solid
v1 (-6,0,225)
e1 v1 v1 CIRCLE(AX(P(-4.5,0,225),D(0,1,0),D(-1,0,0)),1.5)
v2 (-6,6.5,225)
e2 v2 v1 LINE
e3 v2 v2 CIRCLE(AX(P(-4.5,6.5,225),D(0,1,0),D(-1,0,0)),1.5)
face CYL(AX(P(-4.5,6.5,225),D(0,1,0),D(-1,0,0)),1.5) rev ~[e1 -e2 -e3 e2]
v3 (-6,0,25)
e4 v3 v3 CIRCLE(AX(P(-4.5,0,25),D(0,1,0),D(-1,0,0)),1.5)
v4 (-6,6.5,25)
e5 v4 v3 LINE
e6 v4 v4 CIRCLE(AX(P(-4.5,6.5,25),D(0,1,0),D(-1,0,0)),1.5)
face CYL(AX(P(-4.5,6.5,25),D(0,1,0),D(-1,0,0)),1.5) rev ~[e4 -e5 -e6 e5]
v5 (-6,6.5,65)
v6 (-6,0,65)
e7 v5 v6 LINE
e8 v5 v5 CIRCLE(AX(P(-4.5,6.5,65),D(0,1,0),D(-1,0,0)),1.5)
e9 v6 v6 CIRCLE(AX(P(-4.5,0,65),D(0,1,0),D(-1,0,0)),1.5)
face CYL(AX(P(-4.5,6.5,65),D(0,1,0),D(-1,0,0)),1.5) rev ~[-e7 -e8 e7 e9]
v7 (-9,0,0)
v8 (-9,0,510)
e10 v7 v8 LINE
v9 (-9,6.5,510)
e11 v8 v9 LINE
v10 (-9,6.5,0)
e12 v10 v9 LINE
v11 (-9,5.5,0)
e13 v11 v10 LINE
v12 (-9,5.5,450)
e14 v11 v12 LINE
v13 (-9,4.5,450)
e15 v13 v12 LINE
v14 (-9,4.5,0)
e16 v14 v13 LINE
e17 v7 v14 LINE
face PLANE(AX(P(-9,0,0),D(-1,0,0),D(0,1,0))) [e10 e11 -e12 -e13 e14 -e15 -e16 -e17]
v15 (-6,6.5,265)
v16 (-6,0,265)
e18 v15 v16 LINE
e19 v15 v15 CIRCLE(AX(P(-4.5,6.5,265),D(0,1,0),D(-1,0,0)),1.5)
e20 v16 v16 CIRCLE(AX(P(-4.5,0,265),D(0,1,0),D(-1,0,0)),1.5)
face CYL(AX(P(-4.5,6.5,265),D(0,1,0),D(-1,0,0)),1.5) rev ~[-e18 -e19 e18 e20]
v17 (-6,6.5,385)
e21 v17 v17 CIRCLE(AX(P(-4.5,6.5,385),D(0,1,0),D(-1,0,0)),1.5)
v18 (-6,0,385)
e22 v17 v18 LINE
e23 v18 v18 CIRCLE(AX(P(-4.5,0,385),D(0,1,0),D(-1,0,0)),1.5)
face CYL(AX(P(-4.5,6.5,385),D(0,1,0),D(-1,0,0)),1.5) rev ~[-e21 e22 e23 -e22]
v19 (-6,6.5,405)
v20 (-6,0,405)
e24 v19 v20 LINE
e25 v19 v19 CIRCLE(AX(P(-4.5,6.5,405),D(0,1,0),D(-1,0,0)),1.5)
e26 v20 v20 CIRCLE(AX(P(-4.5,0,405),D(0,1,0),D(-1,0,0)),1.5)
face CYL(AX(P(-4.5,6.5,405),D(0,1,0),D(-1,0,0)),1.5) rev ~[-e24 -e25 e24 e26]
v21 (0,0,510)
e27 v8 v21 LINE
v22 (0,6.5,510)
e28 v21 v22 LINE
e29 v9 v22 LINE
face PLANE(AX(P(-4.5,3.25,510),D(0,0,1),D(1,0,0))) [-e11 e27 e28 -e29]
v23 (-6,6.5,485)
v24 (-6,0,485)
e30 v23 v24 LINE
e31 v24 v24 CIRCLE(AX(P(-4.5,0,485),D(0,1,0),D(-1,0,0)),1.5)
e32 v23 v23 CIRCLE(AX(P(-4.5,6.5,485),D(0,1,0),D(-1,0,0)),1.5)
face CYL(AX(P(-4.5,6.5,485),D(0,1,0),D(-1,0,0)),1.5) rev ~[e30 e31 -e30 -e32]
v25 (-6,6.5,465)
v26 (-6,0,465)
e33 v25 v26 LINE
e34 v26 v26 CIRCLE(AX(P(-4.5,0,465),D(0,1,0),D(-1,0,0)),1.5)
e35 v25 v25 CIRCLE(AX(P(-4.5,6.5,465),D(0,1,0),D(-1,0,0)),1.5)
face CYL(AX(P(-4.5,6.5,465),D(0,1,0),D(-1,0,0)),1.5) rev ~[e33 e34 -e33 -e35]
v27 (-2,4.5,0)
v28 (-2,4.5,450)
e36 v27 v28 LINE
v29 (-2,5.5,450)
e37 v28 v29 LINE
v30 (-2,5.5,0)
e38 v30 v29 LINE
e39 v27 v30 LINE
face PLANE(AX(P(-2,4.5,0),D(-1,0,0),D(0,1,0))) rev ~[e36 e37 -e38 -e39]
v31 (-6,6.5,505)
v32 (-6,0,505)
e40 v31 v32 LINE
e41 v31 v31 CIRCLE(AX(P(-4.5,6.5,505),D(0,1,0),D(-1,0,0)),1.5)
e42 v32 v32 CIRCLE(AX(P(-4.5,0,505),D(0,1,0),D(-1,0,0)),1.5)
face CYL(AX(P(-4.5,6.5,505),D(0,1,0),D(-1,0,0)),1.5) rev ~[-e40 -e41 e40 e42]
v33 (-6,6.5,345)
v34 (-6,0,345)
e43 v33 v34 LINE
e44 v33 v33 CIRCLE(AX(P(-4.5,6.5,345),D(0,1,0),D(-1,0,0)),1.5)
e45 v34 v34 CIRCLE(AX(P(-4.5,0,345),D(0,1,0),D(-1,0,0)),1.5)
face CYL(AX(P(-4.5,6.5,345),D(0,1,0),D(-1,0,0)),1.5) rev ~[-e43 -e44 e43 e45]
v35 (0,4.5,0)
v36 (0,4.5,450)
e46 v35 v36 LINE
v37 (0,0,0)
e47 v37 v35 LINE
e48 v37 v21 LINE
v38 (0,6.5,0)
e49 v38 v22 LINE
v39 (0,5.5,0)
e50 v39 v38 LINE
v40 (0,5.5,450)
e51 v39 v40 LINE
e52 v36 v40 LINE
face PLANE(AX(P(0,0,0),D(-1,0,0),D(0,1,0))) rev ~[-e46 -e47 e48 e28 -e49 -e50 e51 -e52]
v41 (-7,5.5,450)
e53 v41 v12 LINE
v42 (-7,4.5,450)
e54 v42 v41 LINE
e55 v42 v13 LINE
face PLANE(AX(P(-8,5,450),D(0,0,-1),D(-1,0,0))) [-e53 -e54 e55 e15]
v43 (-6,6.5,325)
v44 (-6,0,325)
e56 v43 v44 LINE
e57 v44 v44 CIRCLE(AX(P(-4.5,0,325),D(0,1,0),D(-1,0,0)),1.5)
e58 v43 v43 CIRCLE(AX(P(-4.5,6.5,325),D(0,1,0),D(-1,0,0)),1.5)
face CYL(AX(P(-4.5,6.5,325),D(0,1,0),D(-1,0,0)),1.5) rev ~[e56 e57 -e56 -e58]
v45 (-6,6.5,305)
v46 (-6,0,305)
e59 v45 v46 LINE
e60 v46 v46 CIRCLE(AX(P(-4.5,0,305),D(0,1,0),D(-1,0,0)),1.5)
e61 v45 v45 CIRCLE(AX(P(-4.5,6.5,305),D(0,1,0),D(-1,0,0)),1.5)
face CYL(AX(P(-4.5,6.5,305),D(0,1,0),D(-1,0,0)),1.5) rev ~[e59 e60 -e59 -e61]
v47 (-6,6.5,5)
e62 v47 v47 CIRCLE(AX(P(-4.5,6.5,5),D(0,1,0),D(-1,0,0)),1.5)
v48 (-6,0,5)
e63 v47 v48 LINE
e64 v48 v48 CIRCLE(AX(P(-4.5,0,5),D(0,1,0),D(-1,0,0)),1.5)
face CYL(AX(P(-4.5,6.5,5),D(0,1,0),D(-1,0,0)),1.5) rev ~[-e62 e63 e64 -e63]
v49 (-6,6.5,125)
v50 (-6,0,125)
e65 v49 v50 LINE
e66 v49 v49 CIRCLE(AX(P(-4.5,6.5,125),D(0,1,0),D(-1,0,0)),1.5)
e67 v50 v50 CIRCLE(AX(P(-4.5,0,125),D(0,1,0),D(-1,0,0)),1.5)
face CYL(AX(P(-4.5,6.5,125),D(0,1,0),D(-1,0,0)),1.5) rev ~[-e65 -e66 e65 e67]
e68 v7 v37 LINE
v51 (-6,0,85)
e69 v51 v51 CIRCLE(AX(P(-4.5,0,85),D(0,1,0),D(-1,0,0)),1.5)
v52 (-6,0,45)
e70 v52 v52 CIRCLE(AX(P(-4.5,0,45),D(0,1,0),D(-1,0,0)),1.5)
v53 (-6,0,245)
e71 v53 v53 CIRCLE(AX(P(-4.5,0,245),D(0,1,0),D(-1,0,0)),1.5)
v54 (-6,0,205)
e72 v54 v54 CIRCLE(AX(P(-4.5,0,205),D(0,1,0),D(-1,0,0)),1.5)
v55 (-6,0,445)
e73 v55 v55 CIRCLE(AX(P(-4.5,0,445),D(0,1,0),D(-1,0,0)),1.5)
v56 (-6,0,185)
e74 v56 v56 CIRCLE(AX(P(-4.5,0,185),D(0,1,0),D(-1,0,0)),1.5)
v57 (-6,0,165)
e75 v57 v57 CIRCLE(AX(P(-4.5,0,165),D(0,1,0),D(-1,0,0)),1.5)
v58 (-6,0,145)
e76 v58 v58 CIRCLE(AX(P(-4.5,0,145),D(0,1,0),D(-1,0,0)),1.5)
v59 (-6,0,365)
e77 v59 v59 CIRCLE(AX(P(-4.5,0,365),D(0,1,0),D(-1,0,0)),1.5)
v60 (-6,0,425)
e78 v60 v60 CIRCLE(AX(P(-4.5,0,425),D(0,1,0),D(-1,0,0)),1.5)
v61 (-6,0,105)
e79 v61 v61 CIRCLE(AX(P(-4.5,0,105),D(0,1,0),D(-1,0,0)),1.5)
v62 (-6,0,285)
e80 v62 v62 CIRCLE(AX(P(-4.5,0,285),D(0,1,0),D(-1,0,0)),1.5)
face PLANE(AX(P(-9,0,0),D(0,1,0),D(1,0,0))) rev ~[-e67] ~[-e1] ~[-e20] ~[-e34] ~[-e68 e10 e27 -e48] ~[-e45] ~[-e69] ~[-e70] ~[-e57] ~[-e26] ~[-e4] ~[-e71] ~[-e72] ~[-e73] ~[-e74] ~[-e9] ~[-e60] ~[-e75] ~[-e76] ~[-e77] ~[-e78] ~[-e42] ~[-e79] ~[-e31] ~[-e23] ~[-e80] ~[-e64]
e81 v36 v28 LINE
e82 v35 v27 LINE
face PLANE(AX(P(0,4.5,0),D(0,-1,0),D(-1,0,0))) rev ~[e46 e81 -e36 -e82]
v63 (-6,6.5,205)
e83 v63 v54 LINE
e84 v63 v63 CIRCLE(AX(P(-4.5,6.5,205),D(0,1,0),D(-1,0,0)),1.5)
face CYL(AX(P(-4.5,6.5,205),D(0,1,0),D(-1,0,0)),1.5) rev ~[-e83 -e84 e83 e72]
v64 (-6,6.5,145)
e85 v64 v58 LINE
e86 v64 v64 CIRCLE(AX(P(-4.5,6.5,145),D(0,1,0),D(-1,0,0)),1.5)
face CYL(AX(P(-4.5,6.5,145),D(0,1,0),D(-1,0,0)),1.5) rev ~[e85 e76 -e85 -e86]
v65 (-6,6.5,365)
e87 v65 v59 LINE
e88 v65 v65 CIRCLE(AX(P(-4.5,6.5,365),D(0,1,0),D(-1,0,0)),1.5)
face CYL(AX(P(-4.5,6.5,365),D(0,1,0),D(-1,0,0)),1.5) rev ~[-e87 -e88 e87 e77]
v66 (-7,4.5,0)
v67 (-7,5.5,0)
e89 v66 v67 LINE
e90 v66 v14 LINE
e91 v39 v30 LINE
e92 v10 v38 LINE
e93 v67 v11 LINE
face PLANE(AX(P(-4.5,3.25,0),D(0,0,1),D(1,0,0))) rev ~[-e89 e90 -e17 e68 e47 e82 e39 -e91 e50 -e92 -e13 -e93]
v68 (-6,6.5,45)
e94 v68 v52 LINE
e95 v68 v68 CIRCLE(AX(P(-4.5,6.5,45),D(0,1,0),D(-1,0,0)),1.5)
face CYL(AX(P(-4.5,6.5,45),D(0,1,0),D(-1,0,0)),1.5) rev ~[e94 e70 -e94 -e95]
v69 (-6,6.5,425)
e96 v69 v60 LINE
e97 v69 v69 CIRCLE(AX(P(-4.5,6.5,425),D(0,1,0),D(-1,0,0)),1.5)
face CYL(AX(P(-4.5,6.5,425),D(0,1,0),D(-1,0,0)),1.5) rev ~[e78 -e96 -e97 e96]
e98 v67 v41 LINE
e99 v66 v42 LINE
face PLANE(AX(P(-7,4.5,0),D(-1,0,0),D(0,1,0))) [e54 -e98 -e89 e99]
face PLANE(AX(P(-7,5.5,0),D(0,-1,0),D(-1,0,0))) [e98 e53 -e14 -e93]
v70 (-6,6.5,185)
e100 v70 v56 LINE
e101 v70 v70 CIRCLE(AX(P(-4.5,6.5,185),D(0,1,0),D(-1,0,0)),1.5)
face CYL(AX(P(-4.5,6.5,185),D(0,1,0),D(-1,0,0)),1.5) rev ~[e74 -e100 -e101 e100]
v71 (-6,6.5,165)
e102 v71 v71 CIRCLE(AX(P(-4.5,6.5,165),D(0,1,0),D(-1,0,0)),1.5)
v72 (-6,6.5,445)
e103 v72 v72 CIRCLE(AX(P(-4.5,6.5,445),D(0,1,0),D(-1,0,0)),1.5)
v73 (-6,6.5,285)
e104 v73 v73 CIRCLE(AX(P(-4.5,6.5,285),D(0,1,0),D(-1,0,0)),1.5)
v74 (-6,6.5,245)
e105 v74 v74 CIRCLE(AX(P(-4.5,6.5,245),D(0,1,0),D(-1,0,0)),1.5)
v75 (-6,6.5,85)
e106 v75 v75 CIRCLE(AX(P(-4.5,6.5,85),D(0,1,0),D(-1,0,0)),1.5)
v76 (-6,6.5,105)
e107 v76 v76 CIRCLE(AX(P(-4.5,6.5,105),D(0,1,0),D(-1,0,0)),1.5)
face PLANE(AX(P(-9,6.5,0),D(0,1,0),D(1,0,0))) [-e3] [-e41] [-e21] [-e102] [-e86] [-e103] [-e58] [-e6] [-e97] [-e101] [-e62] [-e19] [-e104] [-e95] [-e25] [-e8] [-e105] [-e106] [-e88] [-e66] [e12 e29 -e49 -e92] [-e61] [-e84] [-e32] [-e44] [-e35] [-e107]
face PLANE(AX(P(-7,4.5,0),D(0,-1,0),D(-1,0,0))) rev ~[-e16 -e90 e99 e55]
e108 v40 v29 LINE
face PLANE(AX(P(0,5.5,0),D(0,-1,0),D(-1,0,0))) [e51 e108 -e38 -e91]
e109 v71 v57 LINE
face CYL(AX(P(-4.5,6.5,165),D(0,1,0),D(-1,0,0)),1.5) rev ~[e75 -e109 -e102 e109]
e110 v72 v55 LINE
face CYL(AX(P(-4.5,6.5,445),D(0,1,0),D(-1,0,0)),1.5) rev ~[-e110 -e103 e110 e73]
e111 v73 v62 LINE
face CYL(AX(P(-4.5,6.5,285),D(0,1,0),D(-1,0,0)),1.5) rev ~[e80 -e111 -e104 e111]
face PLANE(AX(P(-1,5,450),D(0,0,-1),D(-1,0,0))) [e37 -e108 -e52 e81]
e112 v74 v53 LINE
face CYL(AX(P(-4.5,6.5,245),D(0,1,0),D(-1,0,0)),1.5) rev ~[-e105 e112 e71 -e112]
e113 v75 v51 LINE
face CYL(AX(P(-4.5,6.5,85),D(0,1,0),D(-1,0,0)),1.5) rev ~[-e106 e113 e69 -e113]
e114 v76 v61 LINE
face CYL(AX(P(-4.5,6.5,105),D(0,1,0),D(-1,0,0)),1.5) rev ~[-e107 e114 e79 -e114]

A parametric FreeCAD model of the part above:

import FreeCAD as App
import Part
import Sketcher

V = App.Vector
Q = App.Units.Quantity

doc = App.newDocument("Part")
body = doc.addObject("PartDesign::Body", "Body")

sketch1 = body.newObject("Sketcher::SketchObject", "Sketch")
sketch1.AttachmentSupport = (doc.getObject("XY_Plane"), [""])
sketch1.MapMode = "FlatFace"
sketch1.addGeometry(Part.LineSegment(V(-9, 6, 0), V(-9, 0, 0)), False)
sketch1.addGeometry(Part.LineSegment(V(-9, 0, 0), V(0, 0, 0)), False)
sketch1.addGeometry(Part.LineSegment(V(0, 0, 0), V(0, 6, 0)), False)
sketch1.addGeometry(Part.LineSegment(V(0, 6, 0), V(-9, 6, 0)), False)
sketch1.addConstraint(Sketcher.Constraint("Coincident", 0, 2, 1, 1))
sketch1.addConstraint(Sketcher.Constraint("Coincident", 1, 2, 2, 1))
sketch1.addConstraint(Sketcher.Constraint("Coincident", 2, 2, 3, 1))
sketch1.addConstraint(Sketcher.Constraint("Coincident", 3, 2, 0, 1))
sketch1.addConstraint(Sketcher.Constraint("Vertical", 0))
sketch1.addConstraint(Sketcher.Constraint("Horizontal", 1))
sketch1.addConstraint(Sketcher.Constraint("Vertical", 2))
sketch1.addConstraint(Sketcher.Constraint("Horizontal", 3))
sketch1.addConstraint(Sketcher.Constraint("Coincident", 1, 2, -1, 1))
sketch1.addConstraint(Sketcher.Constraint("DistanceX", 1, 1, 1, 2, Q("9 mm")))
sketch1.addConstraint(Sketcher.Constraint("DistanceY", 0, 2, 0, 1, Q("6.5 mm")))
pad1 = body.newObject("PartDesign::Pad", "Pad")
pad1.Profile = sketch1
pad1.Length = 510

sketch2 = body.newObject("Sketcher::SketchObject", "Sketch001")
sketch2.AttachmentSupport = (doc.getObject("XY_Plane"), [""])
sketch2.MapMode = "FlatFace"
sketch2.addGeometry(Part.LineSegment(V(0, 5.5, 0), V(0, 4.5, 0)), False)
sketch2.addGeometry(Part.LineSegment(V(0, 4.5, 0), V(-2, 4.5, 0)), False)
sketch2.addGeometry(Part.LineSegment(V(-2, 4.5, 0), V(-2, 5.5, 0)), False)
sketch2.addGeometry(Part.LineSegment(V(-2, 5.5, 0), V(0, 5.5, 0)), False)
sketch2.addGeometry(Part.LineSegment(V(-7, 5.5, 0), V(-7, 4.5, 0)), False)
sketch2.addGeometry(Part.LineSegment(V(-7, 4.5, 0), V(-9, 4.5, 0)), False)
sketch2.addGeometry(Part.LineSegment(V(-9, 4.5, 0), V(-9, 5.5, 0)), False)
sketch2.addGeometry(Part.LineSegment(V(-9, 5.5, 0), V(-7, 5.5, 0)), False)
sketch2.addConstraint(Sketcher.Constraint("Coincident", 0, 2, 1, 1))
sketch2.addConstraint(Sketcher.Constraint("Coincident", 1, 2, 2, 1))
sketch2.addConstraint(Sketcher.Constraint("Coincident", 2, 2, 3, 1))
sketch2.addConstraint(Sketcher.Constraint("Coincident", 3, 2, 0, 1))
sketch2.addConstraint(Sketcher.Constraint("Coincident", 4, 2, 5, 1))
sketch2.addConstraint(Sketcher.Constraint("Coincident", 5, 2, 6, 1))
sketch2.addConstraint(Sketcher.Constraint("Coincident", 6, 2, 7, 1))
sketch2.addConstraint(Sketcher.Constraint("Coincident", 7, 2, 4, 1))
sketch2.addConstraint(Sketcher.Constraint("Vertical", 0))
sketch2.addConstraint(Sketcher.Constraint("Horizontal", 1))
sketch2.addConstraint(Sketcher.Constraint("Vertical", 2))
sketch2.addConstraint(Sketcher.Constraint("Horizontal", 3))
sketch2.addConstraint(Sketcher.Constraint("Vertical", 4))
sketch2.addConstraint(Sketcher.Constraint("Horizontal", 5))
sketch2.addConstraint(Sketcher.Constraint("Vertical", 6))
sketch2.addConstraint(Sketcher.Constraint("Horizontal", 7))
sketch2.addConstraint(Sketcher.Constraint("PointOnObject", 0, 2, -2))
sketch2.addConstraint(Sketcher.Constraint("Horizontal", 1, 2, 4, 2))
sketch2.addConstraint(Sketcher.Constraint("Horizontal", 3, 2, 6, 2))
sketch2.addConstraint(Sketcher.Constraint("Equal", 3, 5))
sketch2.addConstraint(Sketcher.Constraint("DistanceX", 1, 2, 1, 1, Q("2 mm")))
sketch2.addConstraint(Sketcher.Constraint("DistanceY", 0, 2, 0, 1, Q("1 mm")))
sketch2.addConstraint(Sketcher.Constraint("DistanceX", 4, 2, -1, 1, Q("7 mm")))
sketch2.addConstraint(Sketcher.Constraint("DistanceY", -1, 1, 0, 2, Q("4.5 mm")))
pocket1 = body.newObject("PartDesign::Pocket", "Pocket")
pocket1.Profile = sketch2
pocket1.Length = 450
pocket1.Reversed = True

sketch3 = body.newObject("Sketcher::SketchObject", "Sketch002")
sketch3.AttachmentSupport = (doc.getObject("XZ_Plane"), [""])
sketch3.MapMode = "FlatFace"
sketch3.AttachmentOffset = App.Placement(V(0, 0, -6.5), App.Rotation())
sketch3.addGeometry(Part.Circle(V(-4.5, 5, 0), V(0, 0, 1), 1.5), False)
sketch3.addGeometry(Part.Circle(V(-4.5, 25, 0), V(0, 0, 1), 1.5), False)
sketch3.addGeometry(Part.Circle(V(-4.5, 45, 0), V(0, 0, 1), 1.5), False)
sketch3.addGeometry(Part.Circle(V(-4.5, 65, 0), V(0, 0, 1), 1.5), False)
sketch3.addGeometry(Part.Circle(V(-4.5, 85, 0), V(0, 0, 1), 1.5), False)
sketch3.addGeometry(Part.Circle(V(-4.5, 105, 0), V(0, 0, 1), 1.5), False)
sketch3.addGeometry(Part.Circle(V(-4.5, 125, 0), V(0, 0, 1), 1.5), False)
sketch3.addGeometry(Part.Circle(V(-4.5, 145, 0), V(0, 0, 1), 1.5), False)
sketch3.addGeometry(Part.Circle(V(-4.5, 165, 0), V(0, 0, 1), 1.5), False)
sketch3.addGeometry(Part.Circle(V(-4.5, 185, 0), V(0, 0, 1), 1.5), False)
sketch3.addGeometry(Part.Circle(V(-4.5, 205, 0), V(0, 0, 1), 1.5), False)
sketch3.addGeometry(Part.Circle(V(-4.5, 225, 0), V(0, 0, 1), 1.5), False)
sketch3.addGeometry(Part.Circle(V(-4.5, 245, 0), V(0, 0, 1), 1.5), False)
sketch3.addGeometry(Part.Circle(V(-4.5, 265, 0), V(0, 0, 1), 1.5), False)
sketch3.addGeometry(Part.Circle(V(-4.5, 285, 0), V(0, 0, 1), 1.5), False)
sketch3.addGeometry(Part.Circle(V(-4.5, 305, 0), V(0, 0, 1), 1.5), False)
sketch3.addGeometry(Part.Circle(V(-4.5, 325, 0), V(0, 0, 1), 1.5), False)
sketch3.addGeometry(Part.Circle(V(-4.5, 345, 0), V(0, 0, 1), 1.5), False)
sketch3.addGeometry(Part.Circle(V(-4.5, 365, 0), V(0, 0, 1), 1.5), False)
sketch3.addGeometry(Part.Circle(V(-4.5, 385, 0), V(0, 0, 1), 1.5), False)
sketch3.addGeometry(Part.Circle(V(-4.5, 405, 0), V(0, 0, 1), 1.5), False)
sketch3.addGeometry(Part.Circle(V(-4.5, 425, 0), V(0, 0, 1), 1.5), False)
sketch3.addGeometry(Part.Circle(V(-4.5, 445, 0), V(0, 0, 1), 1.5), False)
sketch3.addGeometry(Part.Circle(V(-4.5, 465, 0), V(0, 0, 1), 1.5), False)
sketch3.addGeometry(Part.Circle(V(-4.5, 485, 0), V(0, 0, 1), 1.5), False)
sketch3.addGeometry(Part.Circle(V(-4.5, 505, 0), V(0, 0, 1), 1.5), False)
sketch3.addConstraint(Sketcher.Constraint("Equal", 0, 1))
sketch3.addConstraint(Sketcher.Constraint("Equal", 1, 2))
sketch3.addConstraint(Sketcher.Constraint("Equal", 2, 3))
sketch3.addConstraint(Sketcher.Constraint("Equal", 3, 4))
sketch3.addConstraint(Sketcher.Constraint("Equal", 4, 5))
sketch3.addConstraint(Sketcher.Constraint("Equal", 5, 6))
sketch3.addConstraint(Sketcher.Constraint("Equal", 6, 7))
sketch3.addConstraint(Sketcher.Constraint("Equal", 7, 8))
sketch3.addConstraint(Sketcher.Constraint("Equal", 8, 9))
sketch3.addConstraint(Sketcher.Constraint("Equal", 9, 10))
sketch3.addConstraint(Sketcher.Constraint("Equal", 10, 11))
sketch3.addConstraint(Sketcher.Constraint("Equal", 11, 12))
sketch3.addConstraint(Sketcher.Constraint("Equal", 12, 13))
sketch3.addConstraint(Sketcher.Constraint("Equal", 13, 14))
sketch3.addConstraint(Sketcher.Constraint("Equal", 14, 15))
sketch3.addConstraint(Sketcher.Constraint("Equal", 15, 16))
sketch3.addConstraint(Sketcher.Constraint("Equal", 16, 17))
sketch3.addConstraint(Sketcher.Constraint("Equal", 17, 18))
sketch3.addConstraint(Sketcher.Constraint("Equal", 18, 19))
sketch3.addConstraint(Sketcher.Constraint("Equal", 19, 20))
sketch3.addConstraint(Sketcher.Constraint("Equal", 20, 21))
sketch3.addConstraint(Sketcher.Constraint("Equal", 21, 22))
sketch3.addConstraint(Sketcher.Constraint("Equal", 22, 23))
sketch3.addConstraint(Sketcher.Constraint("Equal", 23, 24))
sketch3.addConstraint(Sketcher.Constraint("Equal", 24, 25))
sketch3.addConstraint(Sketcher.Constraint("Vertical", 0, 3, 1, 3))
sketch3.addConstraint(Sketcher.Constraint("Vertical", 1, 3, 2, 3))
sketch3.addConstraint(Sketcher.Constraint("Vertical", 2, 3, 3, 3))
sketch3.addConstraint(Sketcher.Constraint("Vertical", 3, 3, 4, 3))
sketch3.addConstraint(Sketcher.Constraint("Vertical", 4, 3, 5, 3))
sketch3.addConstraint(Sketcher.Constraint("Vertical", 5, 3, 6, 3))
sketch3.addConstraint(Sketcher.Constraint("Vertical", 6, 3, 7, 3))
sketch3.addConstraint(Sketcher.Constraint("Vertical", 7, 3, 8, 3))
sketch3.addConstraint(Sketcher.Constraint("Vertical", 8, 3, 9, 3))
sketch3.addConstraint(Sketcher.Constraint("Vertical", 9, 3, 10, 3))
sketch3.addConstraint(Sketcher.Constraint("Vertical", 10, 3, 11, 3))
sketch3.addConstraint(Sketcher.Constraint("Vertical", 11, 3, 12, 3))
sketch3.addConstraint(Sketcher.Constraint("Vertical", 12, 3, 13, 3))
sketch3.addConstraint(Sketcher.Constraint("Vertical", 13, 3, 14, 3))
sketch3.addConstraint(Sketcher.Constraint("Vertical", 14, 3, 15, 3))
sketch3.addConstraint(Sketcher.Constraint("Vertical", 15, 3, 16, 3))
sketch3.addConstraint(Sketcher.Constraint("Vertical", 16, 3, 17, 3))
sketch3.addConstraint(Sketcher.Constraint("Vertical", 17, 3, 18, 3))
sketch3.addConstraint(Sketcher.Constraint("Vertical", 18, 3, 19, 3))
sketch3.addConstraint(Sketcher.Constraint("Vertical", 19, 3, 20, 3))
sketch3.addConstraint(Sketcher.Constraint("Vertical", 20, 3, 21, 3))
sketch3.addConstraint(Sketcher.Constraint("Vertical", 21, 3, 22, 3))
sketch3.addConstraint(Sketcher.Constraint("Vertical", 22, 3, 23, 3))
sketch3.addConstraint(Sketcher.Constraint("Vertical", 23, 3, 24, 3))
sketch3.addConstraint(Sketcher.Constraint("Vertical", 24, 3, 25, 3))
sketch3.addConstraint(Sketcher.Constraint("Diameter", 0, Q("3 mm")))
sketch3.addConstraint(Sketcher.Constraint("DistanceY", -1, 1, 0, 3, Q("5 mm")))
sketch3.addConstraint(Sketcher.Constraint("DistanceY", -1, 1, 1, 3, Q("25 mm")))
sketch3.addConstraint(Sketcher.Constraint("DistanceY", -1, 1, 2, 3, Q("45 mm")))
sketch3.addConstraint(Sketcher.Constraint("DistanceY", -1, 1, 3, 3, Q("65 mm")))
sketch3.addConstraint(Sketcher.Constraint("DistanceY", -1, 1, 4, 3, Q("85 mm")))
sketch3.addConstraint(Sketcher.Constraint("DistanceY", -1, 1, 5, 3, Q("105 mm")))
sketch3.addConstraint(Sketcher.Constraint("DistanceY", -1, 1, 6, 3, Q("125 mm")))
sketch3.addConstraint(Sketcher.Constraint("DistanceY", -1, 1, 7, 3, Q("145 mm")))
sketch3.addConstraint(Sketcher.Constraint("DistanceY", -1, 1, 8, 3, Q("165 mm")))
sketch3.addConstraint(Sketcher.Constraint("DistanceY", -1, 1, 9, 3, Q("185 mm")))
sketch3.addConstraint(Sketcher.Constraint("DistanceY", -1, 1, 10, 3, Q("205 mm")))
sketch3.addConstraint(Sketcher.Constraint("DistanceY", -1, 1, 11, 3, Q("225 mm")))
sketch3.addConstraint(Sketcher.Constraint("DistanceY", -1, 1, 12, 3, Q("245 mm")))
sketch3.addConstraint(Sketcher.Constraint("DistanceY", -1, 1, 13, 3, Q("265 mm")))
sketch3.addConstraint(Sketcher.Constraint("DistanceY", -1, 1, 14, 3, Q("285 mm")))
sketch3.addConstraint(Sketcher.Constraint("DistanceY", -1, 1, 15, 3, Q("305 mm")))
sketch3.addConstraint(Sketcher.Constraint("DistanceY", -1, 1, 16, 3, Q("325 mm")))
sketch3.addConstraint(Sketcher.Constraint("DistanceY", -1, 1, 17, 3, Q("345 mm")))
sketch3.addConstraint(Sketcher.Constraint("DistanceY", -1, 1, 18, 3, Q("365 mm")))
sketch3.addConstraint(Sketcher.Constraint("DistanceY", -1, 1, 19, 3, Q("385 mm")))
sketch3.addConstraint(Sketcher.Constraint("DistanceY", -1, 1, 20, 3, Q("405 mm")))
sketch3.addConstraint(Sketcher.Constraint("DistanceY", -1, 1, 21, 3, Q("425 mm")))
sketch3.addConstraint(Sketcher.Constraint("DistanceY", -1, 1, 22, 3, Q("445 mm")))
sketch3.addConstraint(Sketcher.Constraint("DistanceY", -1, 1, 23, 3, Q("465 mm")))
sketch3.addConstraint(Sketcher.Constraint("DistanceY", -1, 1, 24, 3, Q("485 mm")))
sketch3.addConstraint(Sketcher.Constraint("DistanceY", -1, 1, 25, 3, Q("505 mm")))
sketch3.addConstraint(Sketcher.Constraint("DistanceX", 0, 3, -1, 1, Q("4.5 mm")))
pocket2 = body.newObject("PartDesign::Pocket", "Pocket001")
pocket2.Profile = sketch3
pocket2.Length = 6.5
pocket2.Reversed = True

doc.recompute()
